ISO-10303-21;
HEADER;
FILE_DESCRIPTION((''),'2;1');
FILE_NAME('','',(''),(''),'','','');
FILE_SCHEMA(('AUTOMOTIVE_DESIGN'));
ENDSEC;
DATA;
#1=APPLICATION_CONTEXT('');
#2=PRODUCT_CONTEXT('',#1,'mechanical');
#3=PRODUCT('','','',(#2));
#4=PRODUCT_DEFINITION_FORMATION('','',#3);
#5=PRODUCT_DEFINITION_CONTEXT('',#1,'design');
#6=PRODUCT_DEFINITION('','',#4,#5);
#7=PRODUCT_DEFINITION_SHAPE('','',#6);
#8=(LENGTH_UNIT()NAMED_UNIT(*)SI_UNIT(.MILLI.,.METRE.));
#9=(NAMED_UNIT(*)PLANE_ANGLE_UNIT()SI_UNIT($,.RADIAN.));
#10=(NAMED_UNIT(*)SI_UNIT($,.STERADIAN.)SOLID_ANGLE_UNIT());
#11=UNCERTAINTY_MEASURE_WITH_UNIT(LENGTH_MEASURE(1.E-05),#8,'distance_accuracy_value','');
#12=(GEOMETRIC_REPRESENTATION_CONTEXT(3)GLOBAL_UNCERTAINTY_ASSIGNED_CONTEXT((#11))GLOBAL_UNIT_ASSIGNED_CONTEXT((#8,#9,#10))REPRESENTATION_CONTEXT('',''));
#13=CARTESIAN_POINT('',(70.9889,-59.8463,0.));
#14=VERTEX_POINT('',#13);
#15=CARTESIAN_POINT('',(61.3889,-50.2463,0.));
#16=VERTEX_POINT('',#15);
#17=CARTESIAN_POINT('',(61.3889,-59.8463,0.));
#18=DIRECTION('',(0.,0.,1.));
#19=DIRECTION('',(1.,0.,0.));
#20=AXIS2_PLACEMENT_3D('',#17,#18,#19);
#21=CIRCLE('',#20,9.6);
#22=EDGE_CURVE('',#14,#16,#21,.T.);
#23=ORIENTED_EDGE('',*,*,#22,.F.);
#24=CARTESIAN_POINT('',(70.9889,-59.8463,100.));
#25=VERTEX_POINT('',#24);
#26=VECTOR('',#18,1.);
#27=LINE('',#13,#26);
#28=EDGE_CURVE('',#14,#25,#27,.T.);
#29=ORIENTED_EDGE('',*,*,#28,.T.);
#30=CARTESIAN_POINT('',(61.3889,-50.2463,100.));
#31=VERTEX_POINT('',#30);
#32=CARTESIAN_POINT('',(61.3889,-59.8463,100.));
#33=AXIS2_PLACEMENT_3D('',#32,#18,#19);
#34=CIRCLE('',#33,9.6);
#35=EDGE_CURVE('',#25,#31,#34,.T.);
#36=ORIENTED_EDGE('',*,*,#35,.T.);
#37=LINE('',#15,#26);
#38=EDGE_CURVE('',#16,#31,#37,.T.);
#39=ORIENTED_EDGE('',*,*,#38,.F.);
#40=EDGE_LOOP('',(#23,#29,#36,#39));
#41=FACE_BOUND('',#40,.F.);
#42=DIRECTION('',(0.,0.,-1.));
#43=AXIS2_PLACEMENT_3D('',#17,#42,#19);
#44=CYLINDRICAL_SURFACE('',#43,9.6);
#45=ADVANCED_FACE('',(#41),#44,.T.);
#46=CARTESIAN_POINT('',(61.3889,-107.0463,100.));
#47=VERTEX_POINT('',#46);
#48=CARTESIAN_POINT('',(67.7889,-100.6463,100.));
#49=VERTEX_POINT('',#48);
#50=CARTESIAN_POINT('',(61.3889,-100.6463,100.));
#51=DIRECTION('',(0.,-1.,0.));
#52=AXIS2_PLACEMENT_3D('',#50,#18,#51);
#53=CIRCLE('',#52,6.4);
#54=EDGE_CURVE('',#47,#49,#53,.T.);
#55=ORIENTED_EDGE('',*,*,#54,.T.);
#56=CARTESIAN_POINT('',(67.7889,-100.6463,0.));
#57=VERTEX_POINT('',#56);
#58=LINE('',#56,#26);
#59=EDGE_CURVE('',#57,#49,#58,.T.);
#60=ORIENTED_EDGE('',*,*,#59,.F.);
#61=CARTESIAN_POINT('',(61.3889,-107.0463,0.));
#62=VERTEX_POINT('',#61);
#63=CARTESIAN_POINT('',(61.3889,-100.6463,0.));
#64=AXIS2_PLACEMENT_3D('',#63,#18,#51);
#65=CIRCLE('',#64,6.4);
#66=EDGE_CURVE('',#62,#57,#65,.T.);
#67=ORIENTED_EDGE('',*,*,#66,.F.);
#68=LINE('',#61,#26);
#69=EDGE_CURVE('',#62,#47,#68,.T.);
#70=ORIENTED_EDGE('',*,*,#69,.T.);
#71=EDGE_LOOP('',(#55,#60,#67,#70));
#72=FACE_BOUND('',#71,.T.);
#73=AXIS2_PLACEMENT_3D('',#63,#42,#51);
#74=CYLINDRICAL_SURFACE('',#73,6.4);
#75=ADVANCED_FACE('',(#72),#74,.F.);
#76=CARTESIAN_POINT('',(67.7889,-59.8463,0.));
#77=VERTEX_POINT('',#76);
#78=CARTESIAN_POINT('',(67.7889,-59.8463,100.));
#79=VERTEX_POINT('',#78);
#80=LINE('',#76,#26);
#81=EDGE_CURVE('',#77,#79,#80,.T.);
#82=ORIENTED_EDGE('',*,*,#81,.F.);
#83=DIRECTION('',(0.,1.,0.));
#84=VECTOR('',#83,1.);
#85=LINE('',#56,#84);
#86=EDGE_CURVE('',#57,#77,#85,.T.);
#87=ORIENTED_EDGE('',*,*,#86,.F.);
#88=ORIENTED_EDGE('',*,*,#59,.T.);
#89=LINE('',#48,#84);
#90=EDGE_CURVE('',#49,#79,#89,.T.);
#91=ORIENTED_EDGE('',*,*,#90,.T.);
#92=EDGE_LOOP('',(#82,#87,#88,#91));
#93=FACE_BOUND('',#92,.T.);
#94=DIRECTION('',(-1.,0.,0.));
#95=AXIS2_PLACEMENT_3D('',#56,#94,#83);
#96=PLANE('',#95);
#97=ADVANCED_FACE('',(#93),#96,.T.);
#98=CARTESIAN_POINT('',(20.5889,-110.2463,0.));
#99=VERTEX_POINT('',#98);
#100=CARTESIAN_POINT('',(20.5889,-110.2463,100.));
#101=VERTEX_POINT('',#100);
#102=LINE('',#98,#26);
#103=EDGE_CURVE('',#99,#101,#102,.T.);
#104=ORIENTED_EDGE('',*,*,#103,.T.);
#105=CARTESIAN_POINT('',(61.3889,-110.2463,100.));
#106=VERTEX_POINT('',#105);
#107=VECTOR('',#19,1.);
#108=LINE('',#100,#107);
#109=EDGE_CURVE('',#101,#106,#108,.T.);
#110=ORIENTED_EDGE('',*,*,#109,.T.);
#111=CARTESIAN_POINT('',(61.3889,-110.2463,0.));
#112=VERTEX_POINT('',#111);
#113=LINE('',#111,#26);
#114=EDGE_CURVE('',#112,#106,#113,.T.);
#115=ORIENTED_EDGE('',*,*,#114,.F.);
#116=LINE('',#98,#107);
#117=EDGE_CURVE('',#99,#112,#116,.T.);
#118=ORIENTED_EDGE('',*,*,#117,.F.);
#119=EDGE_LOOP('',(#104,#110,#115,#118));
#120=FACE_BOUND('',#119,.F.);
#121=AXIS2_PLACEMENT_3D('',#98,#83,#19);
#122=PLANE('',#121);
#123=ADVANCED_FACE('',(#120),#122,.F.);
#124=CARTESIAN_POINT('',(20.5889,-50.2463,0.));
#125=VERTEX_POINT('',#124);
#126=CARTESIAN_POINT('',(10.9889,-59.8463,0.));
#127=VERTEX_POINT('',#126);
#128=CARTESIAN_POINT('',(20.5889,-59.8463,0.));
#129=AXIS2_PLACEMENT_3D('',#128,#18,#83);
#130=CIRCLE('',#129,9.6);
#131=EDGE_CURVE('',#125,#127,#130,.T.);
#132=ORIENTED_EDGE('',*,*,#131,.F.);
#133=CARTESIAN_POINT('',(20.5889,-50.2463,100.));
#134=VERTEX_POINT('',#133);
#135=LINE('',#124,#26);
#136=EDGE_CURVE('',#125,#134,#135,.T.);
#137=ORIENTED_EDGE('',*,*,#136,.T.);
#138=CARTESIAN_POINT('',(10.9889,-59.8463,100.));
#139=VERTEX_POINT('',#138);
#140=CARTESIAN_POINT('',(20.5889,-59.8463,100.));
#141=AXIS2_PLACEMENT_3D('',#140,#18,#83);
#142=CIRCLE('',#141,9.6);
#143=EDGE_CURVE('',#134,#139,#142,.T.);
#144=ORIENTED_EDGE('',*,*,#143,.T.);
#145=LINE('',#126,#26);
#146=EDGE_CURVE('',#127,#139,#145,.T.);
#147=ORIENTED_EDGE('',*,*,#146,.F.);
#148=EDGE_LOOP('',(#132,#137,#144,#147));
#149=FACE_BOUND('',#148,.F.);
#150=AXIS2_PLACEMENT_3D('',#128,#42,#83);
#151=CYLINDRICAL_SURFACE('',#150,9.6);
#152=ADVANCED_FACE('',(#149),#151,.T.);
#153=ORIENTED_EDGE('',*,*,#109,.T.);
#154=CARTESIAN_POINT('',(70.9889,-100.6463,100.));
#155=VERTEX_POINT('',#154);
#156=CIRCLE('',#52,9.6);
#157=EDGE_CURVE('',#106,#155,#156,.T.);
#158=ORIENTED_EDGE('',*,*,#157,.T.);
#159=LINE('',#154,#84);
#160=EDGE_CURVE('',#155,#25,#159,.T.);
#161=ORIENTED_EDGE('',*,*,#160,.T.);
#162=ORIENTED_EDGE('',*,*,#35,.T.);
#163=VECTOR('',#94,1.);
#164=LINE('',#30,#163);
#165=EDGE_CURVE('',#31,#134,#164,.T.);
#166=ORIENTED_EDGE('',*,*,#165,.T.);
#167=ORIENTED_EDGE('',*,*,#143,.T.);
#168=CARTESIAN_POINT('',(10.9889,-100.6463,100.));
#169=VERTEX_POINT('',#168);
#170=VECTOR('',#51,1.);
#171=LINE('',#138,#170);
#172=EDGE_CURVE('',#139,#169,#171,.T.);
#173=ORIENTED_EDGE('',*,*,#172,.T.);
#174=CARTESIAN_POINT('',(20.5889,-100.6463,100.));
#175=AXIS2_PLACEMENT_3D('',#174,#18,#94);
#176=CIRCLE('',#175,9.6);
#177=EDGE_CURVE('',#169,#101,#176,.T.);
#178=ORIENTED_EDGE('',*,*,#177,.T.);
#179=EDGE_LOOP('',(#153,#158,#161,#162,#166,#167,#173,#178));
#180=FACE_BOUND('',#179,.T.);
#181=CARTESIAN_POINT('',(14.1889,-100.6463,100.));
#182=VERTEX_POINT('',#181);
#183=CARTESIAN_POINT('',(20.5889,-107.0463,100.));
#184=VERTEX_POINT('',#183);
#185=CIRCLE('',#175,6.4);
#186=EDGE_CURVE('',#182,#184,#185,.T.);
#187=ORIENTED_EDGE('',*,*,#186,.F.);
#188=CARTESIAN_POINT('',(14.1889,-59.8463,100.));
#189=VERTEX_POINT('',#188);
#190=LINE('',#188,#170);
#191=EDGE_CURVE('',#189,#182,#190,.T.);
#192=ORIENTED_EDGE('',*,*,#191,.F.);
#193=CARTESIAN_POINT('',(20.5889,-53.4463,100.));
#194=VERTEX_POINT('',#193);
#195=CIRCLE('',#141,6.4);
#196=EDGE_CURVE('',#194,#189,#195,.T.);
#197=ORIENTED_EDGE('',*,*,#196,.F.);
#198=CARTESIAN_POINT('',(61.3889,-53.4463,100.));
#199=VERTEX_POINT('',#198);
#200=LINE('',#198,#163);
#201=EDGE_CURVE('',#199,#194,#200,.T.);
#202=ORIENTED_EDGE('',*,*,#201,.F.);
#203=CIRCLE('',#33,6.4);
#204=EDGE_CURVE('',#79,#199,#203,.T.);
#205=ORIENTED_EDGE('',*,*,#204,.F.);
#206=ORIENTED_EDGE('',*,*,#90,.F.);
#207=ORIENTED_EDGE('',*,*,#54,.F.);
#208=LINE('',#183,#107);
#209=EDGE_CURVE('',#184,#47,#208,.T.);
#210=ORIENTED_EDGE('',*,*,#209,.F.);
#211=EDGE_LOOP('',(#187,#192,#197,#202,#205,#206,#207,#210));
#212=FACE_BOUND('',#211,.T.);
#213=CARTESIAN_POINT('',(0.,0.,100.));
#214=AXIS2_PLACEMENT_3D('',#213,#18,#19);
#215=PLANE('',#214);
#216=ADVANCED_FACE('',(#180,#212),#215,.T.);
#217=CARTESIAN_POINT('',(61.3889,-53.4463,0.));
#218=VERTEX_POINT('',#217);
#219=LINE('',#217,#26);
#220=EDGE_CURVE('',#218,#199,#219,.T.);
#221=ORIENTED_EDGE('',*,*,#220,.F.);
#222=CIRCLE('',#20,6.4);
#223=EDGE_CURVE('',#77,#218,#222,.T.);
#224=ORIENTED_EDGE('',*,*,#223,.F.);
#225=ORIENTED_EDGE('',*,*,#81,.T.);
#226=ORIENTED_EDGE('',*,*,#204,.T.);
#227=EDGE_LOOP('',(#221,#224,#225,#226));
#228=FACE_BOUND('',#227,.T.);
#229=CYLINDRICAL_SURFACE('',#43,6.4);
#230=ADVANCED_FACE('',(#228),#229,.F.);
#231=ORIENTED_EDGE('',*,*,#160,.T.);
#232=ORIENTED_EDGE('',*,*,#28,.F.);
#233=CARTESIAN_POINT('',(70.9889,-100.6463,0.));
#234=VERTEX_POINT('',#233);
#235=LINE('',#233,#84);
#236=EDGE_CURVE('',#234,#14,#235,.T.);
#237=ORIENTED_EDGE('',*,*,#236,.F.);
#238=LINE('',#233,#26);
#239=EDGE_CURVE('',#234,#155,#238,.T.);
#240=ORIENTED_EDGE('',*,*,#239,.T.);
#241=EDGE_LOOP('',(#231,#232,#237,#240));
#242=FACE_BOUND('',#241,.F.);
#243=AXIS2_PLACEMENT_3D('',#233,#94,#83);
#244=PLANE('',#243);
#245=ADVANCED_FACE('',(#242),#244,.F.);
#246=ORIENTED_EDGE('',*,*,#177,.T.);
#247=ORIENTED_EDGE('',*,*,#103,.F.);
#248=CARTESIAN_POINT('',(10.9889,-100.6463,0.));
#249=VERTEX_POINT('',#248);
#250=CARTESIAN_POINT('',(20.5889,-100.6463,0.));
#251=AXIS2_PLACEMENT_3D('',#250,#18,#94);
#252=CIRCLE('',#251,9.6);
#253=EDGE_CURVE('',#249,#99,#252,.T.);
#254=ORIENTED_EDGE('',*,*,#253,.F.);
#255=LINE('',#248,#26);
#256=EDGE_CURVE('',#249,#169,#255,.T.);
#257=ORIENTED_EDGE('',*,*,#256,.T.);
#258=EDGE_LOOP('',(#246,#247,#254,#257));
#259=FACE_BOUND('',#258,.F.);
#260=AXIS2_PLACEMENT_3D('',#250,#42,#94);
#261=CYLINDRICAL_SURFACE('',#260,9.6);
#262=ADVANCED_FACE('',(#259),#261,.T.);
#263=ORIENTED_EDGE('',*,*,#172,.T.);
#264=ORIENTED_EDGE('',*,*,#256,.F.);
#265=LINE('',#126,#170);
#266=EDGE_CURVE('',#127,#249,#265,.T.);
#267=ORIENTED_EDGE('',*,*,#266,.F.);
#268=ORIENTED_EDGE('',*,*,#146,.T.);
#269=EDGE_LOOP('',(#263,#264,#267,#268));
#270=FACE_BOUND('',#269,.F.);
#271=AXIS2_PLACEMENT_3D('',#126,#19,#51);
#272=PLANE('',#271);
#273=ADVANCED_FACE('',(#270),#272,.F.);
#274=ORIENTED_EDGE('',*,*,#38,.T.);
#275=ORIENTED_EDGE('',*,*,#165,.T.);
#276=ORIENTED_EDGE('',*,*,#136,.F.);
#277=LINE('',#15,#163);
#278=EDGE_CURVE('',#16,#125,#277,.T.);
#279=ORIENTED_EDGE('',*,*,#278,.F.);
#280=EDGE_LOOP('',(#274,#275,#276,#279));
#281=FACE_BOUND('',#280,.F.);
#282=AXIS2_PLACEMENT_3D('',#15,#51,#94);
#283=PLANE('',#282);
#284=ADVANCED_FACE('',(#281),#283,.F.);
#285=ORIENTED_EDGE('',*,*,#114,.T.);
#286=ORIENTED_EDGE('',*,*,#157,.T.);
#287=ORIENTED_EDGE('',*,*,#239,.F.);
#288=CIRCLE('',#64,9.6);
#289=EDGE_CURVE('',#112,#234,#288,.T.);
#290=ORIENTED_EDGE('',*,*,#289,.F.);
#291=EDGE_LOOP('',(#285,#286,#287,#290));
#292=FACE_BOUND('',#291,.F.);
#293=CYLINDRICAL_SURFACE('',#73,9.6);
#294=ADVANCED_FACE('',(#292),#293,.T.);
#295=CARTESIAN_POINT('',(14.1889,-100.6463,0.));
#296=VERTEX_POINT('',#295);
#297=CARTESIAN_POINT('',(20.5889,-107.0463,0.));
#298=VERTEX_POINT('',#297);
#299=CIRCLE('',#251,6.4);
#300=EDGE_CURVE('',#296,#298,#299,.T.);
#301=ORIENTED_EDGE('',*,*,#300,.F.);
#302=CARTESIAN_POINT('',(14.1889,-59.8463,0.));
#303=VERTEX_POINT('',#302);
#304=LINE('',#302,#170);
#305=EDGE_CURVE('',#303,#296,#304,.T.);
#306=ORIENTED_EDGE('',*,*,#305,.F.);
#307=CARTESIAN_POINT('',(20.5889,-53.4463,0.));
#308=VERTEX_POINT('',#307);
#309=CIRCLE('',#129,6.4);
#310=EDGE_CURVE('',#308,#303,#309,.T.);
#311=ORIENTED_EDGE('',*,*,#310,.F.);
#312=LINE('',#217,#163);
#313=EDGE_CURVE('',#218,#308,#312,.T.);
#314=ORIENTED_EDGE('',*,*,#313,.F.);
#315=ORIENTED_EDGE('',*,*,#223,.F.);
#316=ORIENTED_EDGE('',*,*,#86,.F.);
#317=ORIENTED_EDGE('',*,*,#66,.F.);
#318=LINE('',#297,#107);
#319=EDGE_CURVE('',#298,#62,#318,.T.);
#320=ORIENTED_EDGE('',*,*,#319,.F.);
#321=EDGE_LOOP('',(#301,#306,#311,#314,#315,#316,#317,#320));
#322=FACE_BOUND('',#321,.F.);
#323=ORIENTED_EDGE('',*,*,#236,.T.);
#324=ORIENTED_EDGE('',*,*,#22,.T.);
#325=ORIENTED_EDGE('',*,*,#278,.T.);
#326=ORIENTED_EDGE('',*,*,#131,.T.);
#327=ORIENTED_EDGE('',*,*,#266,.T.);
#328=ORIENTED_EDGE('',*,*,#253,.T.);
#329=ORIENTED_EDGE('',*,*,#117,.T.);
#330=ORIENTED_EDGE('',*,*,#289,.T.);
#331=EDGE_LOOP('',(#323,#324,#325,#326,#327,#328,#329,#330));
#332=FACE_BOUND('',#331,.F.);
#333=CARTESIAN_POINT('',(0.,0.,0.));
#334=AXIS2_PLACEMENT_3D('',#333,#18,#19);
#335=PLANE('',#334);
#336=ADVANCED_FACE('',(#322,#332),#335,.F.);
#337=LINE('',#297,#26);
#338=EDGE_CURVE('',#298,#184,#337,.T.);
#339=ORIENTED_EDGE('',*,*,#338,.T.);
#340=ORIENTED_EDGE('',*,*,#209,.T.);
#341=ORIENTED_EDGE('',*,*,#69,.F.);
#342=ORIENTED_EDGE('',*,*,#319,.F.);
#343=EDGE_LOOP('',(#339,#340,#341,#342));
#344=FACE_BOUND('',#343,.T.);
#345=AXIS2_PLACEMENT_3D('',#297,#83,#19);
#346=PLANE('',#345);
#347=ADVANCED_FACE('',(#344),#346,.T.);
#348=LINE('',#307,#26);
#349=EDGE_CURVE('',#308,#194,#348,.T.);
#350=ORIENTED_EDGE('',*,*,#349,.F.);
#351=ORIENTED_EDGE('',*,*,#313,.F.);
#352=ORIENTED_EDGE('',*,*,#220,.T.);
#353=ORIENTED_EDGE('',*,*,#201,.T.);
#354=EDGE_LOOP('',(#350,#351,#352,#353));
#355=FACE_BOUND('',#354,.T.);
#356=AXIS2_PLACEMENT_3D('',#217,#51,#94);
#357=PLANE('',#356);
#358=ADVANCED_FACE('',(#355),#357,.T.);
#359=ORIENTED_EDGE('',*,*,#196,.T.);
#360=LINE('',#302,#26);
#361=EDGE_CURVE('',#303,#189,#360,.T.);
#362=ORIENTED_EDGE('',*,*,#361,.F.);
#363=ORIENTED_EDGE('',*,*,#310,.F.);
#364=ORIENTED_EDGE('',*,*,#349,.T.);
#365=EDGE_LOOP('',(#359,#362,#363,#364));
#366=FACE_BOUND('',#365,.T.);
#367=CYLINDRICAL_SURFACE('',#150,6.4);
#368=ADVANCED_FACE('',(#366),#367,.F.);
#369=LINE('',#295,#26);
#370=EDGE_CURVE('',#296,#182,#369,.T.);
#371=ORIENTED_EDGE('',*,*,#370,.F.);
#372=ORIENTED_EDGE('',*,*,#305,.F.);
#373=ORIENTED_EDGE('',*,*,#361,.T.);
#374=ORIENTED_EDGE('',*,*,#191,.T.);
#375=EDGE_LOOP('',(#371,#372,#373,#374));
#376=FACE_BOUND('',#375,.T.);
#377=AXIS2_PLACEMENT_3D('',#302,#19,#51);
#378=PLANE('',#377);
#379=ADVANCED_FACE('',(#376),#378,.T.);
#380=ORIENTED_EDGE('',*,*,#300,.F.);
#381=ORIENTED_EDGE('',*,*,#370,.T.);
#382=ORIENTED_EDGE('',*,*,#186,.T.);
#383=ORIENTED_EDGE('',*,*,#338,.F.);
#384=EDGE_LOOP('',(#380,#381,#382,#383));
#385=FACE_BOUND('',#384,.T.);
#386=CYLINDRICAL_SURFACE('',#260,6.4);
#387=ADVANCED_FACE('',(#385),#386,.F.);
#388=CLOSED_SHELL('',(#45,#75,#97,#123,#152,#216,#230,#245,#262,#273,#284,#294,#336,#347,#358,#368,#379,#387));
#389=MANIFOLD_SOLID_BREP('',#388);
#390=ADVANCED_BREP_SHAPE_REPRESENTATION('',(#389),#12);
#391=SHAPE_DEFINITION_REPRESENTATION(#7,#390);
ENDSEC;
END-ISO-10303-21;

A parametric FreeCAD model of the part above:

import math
import FreeCAD as App
import Part
import Sketcher
Q = App.Units.Quantity

doc = App.newDocument("Part")
body = doc.addObject("PartDesign::Body", "Body")

sketch1 = body.newObject("Sketcher::SketchObject", "Sketch")
sketch1.AttachmentSupport = (doc.getObject("XY_Plane"), [""])
sketch1.MapMode = "FlatFace"
sketch1.addGeometry([
    Part.LineSegment(App.Vector(21, -110, 0), App.Vector(61, -110, 0)),
    Part.ArcOfCircle(Part.Circle(App.Vector(61, -101, 0), App.Vector(0, 0, 1), 10), math.radians(-90), math.radians(0)),
    Part.LineSegment(App.Vector(71, -101, 0), App.Vector(71, -60, 0)),
    Part.ArcOfCircle(Part.Circle(App.Vector(61, -60, 0), App.Vector(0, 0, 1), 10), math.radians(0), math.radians(90)),
    Part.LineSegment(App.Vector(61, -50, 0), App.Vector(21, -50, 0)),
    Part.ArcOfCircle(Part.Circle(App.Vector(21, -60, 0), App.Vector(0, 0, 1), 10), math.radians(90), math.radians(180)),
    Part.LineSegment(App.Vector(11, -60, 0), App.Vector(11, -101, 0)),
    Part.ArcOfCircle(Part.Circle(App.Vector(21, -101, 0), App.Vector(0, 0, 1), 10), math.radians(180), math.radians(270)),
    Part.ArcOfCircle(Part.Circle(App.Vector(61, -101, 0), App.Vector(0, 0, 1), 6), math.radians(-90), math.radians(0)),
    Part.LineSegment(App.Vector(61, -107, 0), App.Vector(21, -107, 0)),
    Part.ArcOfCircle(Part.Circle(App.Vector(21, -101, 0), App.Vector(0, 0, 1), 6), math.radians(180), math.radians(270)),
    Part.LineSegment(App.Vector(14, -101, 0), App.Vector(14, -60, 0)),
    Part.ArcOfCircle(Part.Circle(App.Vector(21, -60, 0), App.Vector(0, 0, 1), 6), math.radians(90), math.radians(180)),
    Part.LineSegment(App.Vector(21, -53, 0), App.Vector(61, -53, 0)),
    Part.ArcOfCircle(Part.Circle(App.Vector(61, -60, 0), App.Vector(0, 0, 1), 6), math.radians(0), math.radians(90)),
    Part.LineSegment(App.Vector(68, -60, 0), App.Vector(68, -101, 0)),
], False)
sketch1.addConstraint([
    Sketcher.Constraint("Tangent", 0, 2, 1, 1),
    Sketcher.Constraint("Tangent", 1, 2, 2, 1),
    Sketcher.Constraint("Tangent", 2, 2, 3, 1),
    Sketcher.Constraint("Tangent", 3, 2, 4, 1),
    Sketcher.Constraint("Tangent", 4, 2, 5, 1),
    Sketcher.Constraint("Tangent", 5, 2, 6, 1),
    Sketcher.Constraint("Tangent", 6, 2, 7, 1),
    Sketcher.Constraint("Tangent", 7, 2, 0, 1),
    Sketcher.Constraint("Tangent", 8, 1, 9, 1),
    Sketcher.Constraint("Tangent", 9, 2, 10, 2),
    Sketcher.Constraint("Tangent", 10, 1, 11, 1),
    Sketcher.Constraint("Tangent", 11, 2, 12, 2),
    Sketcher.Constraint("Tangent", 12, 1, 13, 1),
    Sketcher.Constraint("Tangent", 13, 2, 14, 2),
    Sketcher.Constraint("Tangent", 14, 1, 15, 1),
    Sketcher.Constraint("Tangent", 15, 2, 8, 2),
    Sketcher.Constraint("Horizontal", 0),
    Sketcher.Constraint("Vertical", 2),
    Sketcher.Constraint("Horizontal", 4),
    Sketcher.Constraint("Vertical", 6),
    Sketcher.Constraint("Horizontal", 9),
    Sketcher.Constraint("Vertical", 11),
    Sketcher.Constraint("Horizontal", 13),
    Sketcher.Constraint("Vertical", 15),
    Sketcher.Constraint("Coincident", 8, 3, 1, 3),
    Sketcher.Constraint("Coincident", 10, 3, 7, 3),
    Sketcher.Constraint("Coincident", 12, 3, 5, 3),
    Sketcher.Constraint("Equal", 1, 3),
    Sketcher.Constraint("Equal", 3, 5),
    Sketcher.Constraint("Equal", 5, 7),
    Sketcher.Constraint("Equal", 12, 14),
    Sketcher.Constraint("Equal", 13, 2),
    Sketcher.Constraint("Radius", 1, Q("9.6 mm")),
    Sketcher.Constraint("Radius", 8, Q("6.4 mm")),
    Sketcher.Constraint("DistanceX", 0, 1, 0, 2, Q("40.8 mm")),
    Sketcher.Constraint("DistanceX", -1, 1, 1, 3, Q("61.389 mm")),
    Sketcher.Constraint("DistanceY", 1, 3, -1, 1, Q("100.6463 mm")),
])
pad1 = body.newObject("PartDesign::Pad", "Pad")
pad1.Profile = sketch1
pad1.Length = 100

doc.recompute()
